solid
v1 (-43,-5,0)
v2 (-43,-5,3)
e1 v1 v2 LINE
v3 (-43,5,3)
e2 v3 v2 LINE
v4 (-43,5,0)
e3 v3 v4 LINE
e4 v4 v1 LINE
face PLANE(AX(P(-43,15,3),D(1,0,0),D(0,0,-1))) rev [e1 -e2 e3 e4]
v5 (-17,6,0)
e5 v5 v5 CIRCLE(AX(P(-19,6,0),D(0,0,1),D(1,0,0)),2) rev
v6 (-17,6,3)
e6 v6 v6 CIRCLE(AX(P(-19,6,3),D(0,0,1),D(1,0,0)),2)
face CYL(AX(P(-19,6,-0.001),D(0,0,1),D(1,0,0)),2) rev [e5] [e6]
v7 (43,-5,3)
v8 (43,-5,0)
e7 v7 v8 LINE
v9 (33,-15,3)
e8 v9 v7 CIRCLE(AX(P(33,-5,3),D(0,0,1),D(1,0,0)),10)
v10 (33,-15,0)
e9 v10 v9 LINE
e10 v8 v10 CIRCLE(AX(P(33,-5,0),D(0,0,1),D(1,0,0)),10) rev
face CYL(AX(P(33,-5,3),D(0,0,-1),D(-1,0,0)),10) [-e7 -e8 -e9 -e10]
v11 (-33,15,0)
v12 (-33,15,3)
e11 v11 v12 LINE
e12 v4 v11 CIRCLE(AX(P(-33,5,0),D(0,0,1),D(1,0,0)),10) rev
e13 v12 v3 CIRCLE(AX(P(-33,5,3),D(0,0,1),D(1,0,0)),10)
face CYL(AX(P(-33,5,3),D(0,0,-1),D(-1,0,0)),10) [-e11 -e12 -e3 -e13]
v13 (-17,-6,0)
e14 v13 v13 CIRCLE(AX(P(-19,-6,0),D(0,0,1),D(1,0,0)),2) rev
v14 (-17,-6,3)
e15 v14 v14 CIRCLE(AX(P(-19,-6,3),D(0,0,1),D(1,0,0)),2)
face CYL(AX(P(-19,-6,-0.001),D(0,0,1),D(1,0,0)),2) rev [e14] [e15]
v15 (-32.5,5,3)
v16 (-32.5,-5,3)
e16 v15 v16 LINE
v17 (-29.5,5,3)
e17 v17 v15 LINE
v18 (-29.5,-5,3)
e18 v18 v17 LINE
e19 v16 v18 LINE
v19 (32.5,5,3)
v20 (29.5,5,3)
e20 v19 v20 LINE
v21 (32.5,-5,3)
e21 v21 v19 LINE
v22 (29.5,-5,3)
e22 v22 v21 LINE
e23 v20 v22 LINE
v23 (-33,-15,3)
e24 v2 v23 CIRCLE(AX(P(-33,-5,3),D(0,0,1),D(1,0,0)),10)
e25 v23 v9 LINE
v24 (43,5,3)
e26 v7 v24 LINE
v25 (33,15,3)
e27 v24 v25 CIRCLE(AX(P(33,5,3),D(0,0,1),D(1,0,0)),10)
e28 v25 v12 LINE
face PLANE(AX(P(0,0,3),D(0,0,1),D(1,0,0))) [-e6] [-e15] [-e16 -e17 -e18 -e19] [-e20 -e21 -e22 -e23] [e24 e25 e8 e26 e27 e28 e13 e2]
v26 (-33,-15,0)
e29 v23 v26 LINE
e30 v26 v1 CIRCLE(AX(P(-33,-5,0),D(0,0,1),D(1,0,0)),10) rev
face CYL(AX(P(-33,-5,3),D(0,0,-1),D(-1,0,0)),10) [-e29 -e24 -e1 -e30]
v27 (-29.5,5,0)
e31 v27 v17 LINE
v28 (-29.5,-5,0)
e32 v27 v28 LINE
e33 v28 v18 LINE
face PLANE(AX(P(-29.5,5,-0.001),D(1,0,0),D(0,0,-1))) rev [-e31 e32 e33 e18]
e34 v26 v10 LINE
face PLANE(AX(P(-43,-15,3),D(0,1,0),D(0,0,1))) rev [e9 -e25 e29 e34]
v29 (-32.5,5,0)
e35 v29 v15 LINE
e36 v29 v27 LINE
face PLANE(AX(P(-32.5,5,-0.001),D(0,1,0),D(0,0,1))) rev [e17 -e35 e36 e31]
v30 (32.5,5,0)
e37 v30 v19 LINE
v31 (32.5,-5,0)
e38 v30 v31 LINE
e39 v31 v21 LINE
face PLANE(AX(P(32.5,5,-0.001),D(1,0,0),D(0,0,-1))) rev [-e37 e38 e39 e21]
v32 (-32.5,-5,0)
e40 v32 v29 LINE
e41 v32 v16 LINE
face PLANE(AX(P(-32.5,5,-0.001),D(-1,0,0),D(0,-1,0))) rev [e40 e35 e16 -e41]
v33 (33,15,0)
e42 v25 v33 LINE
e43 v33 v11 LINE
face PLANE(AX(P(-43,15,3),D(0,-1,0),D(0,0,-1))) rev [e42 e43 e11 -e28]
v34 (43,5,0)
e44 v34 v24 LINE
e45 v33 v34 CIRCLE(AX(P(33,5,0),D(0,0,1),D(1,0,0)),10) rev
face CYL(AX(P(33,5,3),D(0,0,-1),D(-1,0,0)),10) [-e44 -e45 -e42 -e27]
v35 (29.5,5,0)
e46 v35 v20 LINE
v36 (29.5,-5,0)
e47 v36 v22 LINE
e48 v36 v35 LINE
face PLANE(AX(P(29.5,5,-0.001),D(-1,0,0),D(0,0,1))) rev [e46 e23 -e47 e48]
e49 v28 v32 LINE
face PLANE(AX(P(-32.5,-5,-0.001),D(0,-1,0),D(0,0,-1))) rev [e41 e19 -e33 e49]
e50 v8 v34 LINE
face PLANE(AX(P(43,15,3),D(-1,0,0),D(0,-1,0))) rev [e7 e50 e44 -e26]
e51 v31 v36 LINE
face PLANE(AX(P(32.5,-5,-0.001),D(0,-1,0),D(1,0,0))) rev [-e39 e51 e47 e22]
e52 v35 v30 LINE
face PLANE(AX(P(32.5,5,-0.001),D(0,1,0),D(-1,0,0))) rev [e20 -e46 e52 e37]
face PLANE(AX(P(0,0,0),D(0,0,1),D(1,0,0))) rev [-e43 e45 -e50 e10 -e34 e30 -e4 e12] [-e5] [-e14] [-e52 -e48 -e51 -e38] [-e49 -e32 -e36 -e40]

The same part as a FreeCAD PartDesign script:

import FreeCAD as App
import Part
import Sketcher

V = App.Vector


def edges_at(feature, points):
    """Names of the edges that pass closest to the given points."""
    edges = feature.Shape.Edges
    near = lambda p: min(range(len(edges)), key=lambda i: edges[i].distToShape(Part.Vertex(*p))[0])
    return sorted({f"Edge{near(p) + 1}" for p in points})


def add_polygon(sketch, points):
    """Adds a closed chain of lines whose ends are joined by coincident constraints."""
    first, n = sketch.GeometryCount, len(points)
    for a, b in zip(points, points[1:] + points[:1]):
        sketch.addGeometry(Part.LineSegment(App.Vector(*a, 0), App.Vector(*b, 0)), False)
    for i in range(n):
        sketch.addConstraint(Sketcher.Constraint("Coincident", first + i, 2, first + (i + 1) % n, 1))

doc = App.newDocument("Part")
params = doc.addObject("Spreadsheet::Sheet", "Params")
for row, (alias, value) in enumerate([
    ("sketch1_width", "86 mm"),
    ("sketch1_height", "30 mm"),
    ("pad1_length", "3 mm"),
    ("sketch2_diameter", "4 mm"),
    ("sketch3_diameter", "4 mm"),
    ("sketch4_width", "3 mm"),
    ("sketch4_height", "10 mm"),
    ("sketch5_width", "3 mm"),
    ("sketch5_height", "10 mm"),
    ("fillet_radius", "10 mm"),
], start=1):
    params.set(f"A{row}", alias)
    params.set(f"B{row}", "=" + value)
    params.setAlias(f"B{row}", alias)

body = doc.addObject("PartDesign::Body", "Body")

# Sketch on XY plane
sketch1 = body.newObject("Sketcher::SketchObject", "Sketch")
sketch1.AttachmentSupport = (doc.getObject("XY_Plane"), [""])
sketch1.MapMode = "FlatFace"
add_polygon(sketch1, [(-43, 15), (-43, -15), (43, -15), (43, 15)])  # lines 0-3
sketch1.addConstraint([
    Sketcher.Constraint("Vertical", 0),
    Sketcher.Constraint("Horizontal", 1),
    Sketcher.Constraint("Vertical", 2),
    Sketcher.Constraint("Horizontal", 3),
    Sketcher.Constraint("Symmetric", 0, 2, 2, 2, -1, 1),
    Sketcher.Constraint("DistanceX", 1, 1, 1, 2, 86.0),
    Sketcher.Constraint("DistanceY", 0, 2, 0, 1, 30.0),
])
sketch1.setExpression("Constraints[9]", "Params.sketch1_width")
sketch1.setExpression("Constraints[10]", "Params.sketch1_height")
pad1 = body.newObject("PartDesign::Pad", "Pad")
pad1.Profile = sketch1
pad1.setExpression("Length", "Params.pad1_length")

# Sketch on XY plane
sketch2 = body.newObject("Sketcher::SketchObject", "Sketch001")
sketch2.AttachmentSupport = (doc.getObject("XY_Plane"), [""])
sketch2.MapMode = "FlatFace"
sketch2.AttachmentOffset = App.Placement(V(0, 0, 3), App.Rotation())
sketch2.addGeometry(Part.Circle(V(-19, 6, 0), V(0, 0, 1), 2), False)
sketch2.addConstraint([
    Sketcher.Constraint("Diameter", 0, 4.0),
    Sketcher.Constraint("DistanceX", 0, 3, -1, 1, 19.0),
    Sketcher.Constraint("DistanceY", -1, 1, 0, 3, 6.0),
])
sketch2.setExpression("Constraints[0]", "Params.sketch2_diameter")
pocket1 = body.newObject("PartDesign::Pocket", "Pocket")
pocket1.Profile = sketch2
pocket1.Type = "UpToFirst"

# Sketch on XY plane
sketch3 = body.newObject("Sketcher::SketchObject", "Sketch002")
sketch3.AttachmentSupport = (doc.getObject("XY_Plane"), [""])
sketch3.MapMode = "FlatFace"
sketch3.AttachmentOffset = App.Placement(V(0, 0, 3), App.Rotation())
sketch3.addGeometry(Part.Circle(V(-19, -6, 0), V(0, 0, 1), 2), False)
sketch3.addConstraint([
    Sketcher.Constraint("Diameter", 0, 4.0),
    Sketcher.Constraint("DistanceX", 0, 3, -1, 1, 19.0),
    Sketcher.Constraint("DistanceY", 0, 3, -1, 1, 6.0),
])
sketch3.setExpression("Constraints[0]", "Params.sketch3_diameter")
pocket2 = body.newObject("PartDesign::Pocket", "Pocket001")
pocket2.Profile = sketch3
pocket2.Type = "UpToFirst"

# Sketch on XY plane
sketch4 = body.newObject("Sketcher::SketchObject", "Sketch003")
sketch4.AttachmentSupport = (doc.getObject("XY_Plane"), [""])
sketch4.MapMode = "FlatFace"
sketch4.AttachmentOffset = App.Placement(V(0, 0, 3), App.Rotation())
add_polygon(sketch4, [(-32.5, 5), (-32.5, -5), (-29.5, -5), (-29.5, 5)])  # lines 0-3
sketch4.addConstraint([
    Sketcher.Constraint("Vertical", 0),
    Sketcher.Constraint("Horizontal", 1),
    Sketcher.Constraint("Vertical", 2),
    Sketcher.Constraint("Horizontal", 3),
    Sketcher.Constraint("DistanceX", 1, 1, 1, 2, 3.0),
    Sketcher.Constraint("DistanceY", 0, 2, 0, 1, 10.0),
    Sketcher.Constraint("DistanceY", 0, 2, -1, 1, 5.0),
    Sketcher.Constraint("DistanceX", 0, 2, -1, 1, 32.5),
])
sketch4.setExpression("Constraints[8]", "Params.sketch4_width")
sketch4.setExpression("Constraints[9]", "Params.sketch4_height")
pocket3 = body.newObject("PartDesign::Pocket", "Pocket002")
pocket3.Profile = sketch4
pocket3.Type = "UpToFirst"

# Sketch on XY plane
sketch5 = body.newObject("Sketcher::SketchObject", "Sketch004")
sketch5.AttachmentSupport = (doc.getObject("XY_Plane"), [""])
sketch5.MapMode = "FlatFace"
sketch5.AttachmentOffset = App.Placement(V(0, 0, 3), App.Rotation())
add_polygon(sketch5, [(29.5, 5), (29.5, -5), (32.5, -5), (32.5, 5)])  # lines 0-3
sketch5.addConstraint([
    Sketcher.Constraint("Vertical", 0),
    Sketcher.Constraint("Horizontal", 1),
    Sketcher.Constraint("Vertical", 2),
    Sketcher.Constraint("Horizontal", 3),
    Sketcher.Constraint("DistanceX", 1, 1, 1, 2, 3.0),
    Sketcher.Constraint("DistanceY", 0, 2, 0, 1, 10.0),
    Sketcher.Constraint("DistanceY", 0, 2, -1, 1, 5.0),
    Sketcher.Constraint("DistanceX", -1, 1, 0, 2, 29.5),
])
sketch5.setExpression("Constraints[8]", "Params.sketch5_width")
sketch5.setExpression("Constraints[9]", "Params.sketch5_height")
pocket4 = body.newObject("PartDesign::Pocket", "Pocket003")
pocket4.Profile = sketch5
pocket4.Type = "UpToFirst"
doc.recompute()

fillet = body.newObject("PartDesign::Fillet", "Fillet")
fillet.Base = (pocket4, edges_at(pocket4, [
    (43, -15, 1.5),
    (-43, -15, 1.5),
    (-43, 15, 1.5),
    (43, 15, 1.5),
]))
fillet.setExpression("Radius", "Params.fillet_radius")

doc.recompute()
